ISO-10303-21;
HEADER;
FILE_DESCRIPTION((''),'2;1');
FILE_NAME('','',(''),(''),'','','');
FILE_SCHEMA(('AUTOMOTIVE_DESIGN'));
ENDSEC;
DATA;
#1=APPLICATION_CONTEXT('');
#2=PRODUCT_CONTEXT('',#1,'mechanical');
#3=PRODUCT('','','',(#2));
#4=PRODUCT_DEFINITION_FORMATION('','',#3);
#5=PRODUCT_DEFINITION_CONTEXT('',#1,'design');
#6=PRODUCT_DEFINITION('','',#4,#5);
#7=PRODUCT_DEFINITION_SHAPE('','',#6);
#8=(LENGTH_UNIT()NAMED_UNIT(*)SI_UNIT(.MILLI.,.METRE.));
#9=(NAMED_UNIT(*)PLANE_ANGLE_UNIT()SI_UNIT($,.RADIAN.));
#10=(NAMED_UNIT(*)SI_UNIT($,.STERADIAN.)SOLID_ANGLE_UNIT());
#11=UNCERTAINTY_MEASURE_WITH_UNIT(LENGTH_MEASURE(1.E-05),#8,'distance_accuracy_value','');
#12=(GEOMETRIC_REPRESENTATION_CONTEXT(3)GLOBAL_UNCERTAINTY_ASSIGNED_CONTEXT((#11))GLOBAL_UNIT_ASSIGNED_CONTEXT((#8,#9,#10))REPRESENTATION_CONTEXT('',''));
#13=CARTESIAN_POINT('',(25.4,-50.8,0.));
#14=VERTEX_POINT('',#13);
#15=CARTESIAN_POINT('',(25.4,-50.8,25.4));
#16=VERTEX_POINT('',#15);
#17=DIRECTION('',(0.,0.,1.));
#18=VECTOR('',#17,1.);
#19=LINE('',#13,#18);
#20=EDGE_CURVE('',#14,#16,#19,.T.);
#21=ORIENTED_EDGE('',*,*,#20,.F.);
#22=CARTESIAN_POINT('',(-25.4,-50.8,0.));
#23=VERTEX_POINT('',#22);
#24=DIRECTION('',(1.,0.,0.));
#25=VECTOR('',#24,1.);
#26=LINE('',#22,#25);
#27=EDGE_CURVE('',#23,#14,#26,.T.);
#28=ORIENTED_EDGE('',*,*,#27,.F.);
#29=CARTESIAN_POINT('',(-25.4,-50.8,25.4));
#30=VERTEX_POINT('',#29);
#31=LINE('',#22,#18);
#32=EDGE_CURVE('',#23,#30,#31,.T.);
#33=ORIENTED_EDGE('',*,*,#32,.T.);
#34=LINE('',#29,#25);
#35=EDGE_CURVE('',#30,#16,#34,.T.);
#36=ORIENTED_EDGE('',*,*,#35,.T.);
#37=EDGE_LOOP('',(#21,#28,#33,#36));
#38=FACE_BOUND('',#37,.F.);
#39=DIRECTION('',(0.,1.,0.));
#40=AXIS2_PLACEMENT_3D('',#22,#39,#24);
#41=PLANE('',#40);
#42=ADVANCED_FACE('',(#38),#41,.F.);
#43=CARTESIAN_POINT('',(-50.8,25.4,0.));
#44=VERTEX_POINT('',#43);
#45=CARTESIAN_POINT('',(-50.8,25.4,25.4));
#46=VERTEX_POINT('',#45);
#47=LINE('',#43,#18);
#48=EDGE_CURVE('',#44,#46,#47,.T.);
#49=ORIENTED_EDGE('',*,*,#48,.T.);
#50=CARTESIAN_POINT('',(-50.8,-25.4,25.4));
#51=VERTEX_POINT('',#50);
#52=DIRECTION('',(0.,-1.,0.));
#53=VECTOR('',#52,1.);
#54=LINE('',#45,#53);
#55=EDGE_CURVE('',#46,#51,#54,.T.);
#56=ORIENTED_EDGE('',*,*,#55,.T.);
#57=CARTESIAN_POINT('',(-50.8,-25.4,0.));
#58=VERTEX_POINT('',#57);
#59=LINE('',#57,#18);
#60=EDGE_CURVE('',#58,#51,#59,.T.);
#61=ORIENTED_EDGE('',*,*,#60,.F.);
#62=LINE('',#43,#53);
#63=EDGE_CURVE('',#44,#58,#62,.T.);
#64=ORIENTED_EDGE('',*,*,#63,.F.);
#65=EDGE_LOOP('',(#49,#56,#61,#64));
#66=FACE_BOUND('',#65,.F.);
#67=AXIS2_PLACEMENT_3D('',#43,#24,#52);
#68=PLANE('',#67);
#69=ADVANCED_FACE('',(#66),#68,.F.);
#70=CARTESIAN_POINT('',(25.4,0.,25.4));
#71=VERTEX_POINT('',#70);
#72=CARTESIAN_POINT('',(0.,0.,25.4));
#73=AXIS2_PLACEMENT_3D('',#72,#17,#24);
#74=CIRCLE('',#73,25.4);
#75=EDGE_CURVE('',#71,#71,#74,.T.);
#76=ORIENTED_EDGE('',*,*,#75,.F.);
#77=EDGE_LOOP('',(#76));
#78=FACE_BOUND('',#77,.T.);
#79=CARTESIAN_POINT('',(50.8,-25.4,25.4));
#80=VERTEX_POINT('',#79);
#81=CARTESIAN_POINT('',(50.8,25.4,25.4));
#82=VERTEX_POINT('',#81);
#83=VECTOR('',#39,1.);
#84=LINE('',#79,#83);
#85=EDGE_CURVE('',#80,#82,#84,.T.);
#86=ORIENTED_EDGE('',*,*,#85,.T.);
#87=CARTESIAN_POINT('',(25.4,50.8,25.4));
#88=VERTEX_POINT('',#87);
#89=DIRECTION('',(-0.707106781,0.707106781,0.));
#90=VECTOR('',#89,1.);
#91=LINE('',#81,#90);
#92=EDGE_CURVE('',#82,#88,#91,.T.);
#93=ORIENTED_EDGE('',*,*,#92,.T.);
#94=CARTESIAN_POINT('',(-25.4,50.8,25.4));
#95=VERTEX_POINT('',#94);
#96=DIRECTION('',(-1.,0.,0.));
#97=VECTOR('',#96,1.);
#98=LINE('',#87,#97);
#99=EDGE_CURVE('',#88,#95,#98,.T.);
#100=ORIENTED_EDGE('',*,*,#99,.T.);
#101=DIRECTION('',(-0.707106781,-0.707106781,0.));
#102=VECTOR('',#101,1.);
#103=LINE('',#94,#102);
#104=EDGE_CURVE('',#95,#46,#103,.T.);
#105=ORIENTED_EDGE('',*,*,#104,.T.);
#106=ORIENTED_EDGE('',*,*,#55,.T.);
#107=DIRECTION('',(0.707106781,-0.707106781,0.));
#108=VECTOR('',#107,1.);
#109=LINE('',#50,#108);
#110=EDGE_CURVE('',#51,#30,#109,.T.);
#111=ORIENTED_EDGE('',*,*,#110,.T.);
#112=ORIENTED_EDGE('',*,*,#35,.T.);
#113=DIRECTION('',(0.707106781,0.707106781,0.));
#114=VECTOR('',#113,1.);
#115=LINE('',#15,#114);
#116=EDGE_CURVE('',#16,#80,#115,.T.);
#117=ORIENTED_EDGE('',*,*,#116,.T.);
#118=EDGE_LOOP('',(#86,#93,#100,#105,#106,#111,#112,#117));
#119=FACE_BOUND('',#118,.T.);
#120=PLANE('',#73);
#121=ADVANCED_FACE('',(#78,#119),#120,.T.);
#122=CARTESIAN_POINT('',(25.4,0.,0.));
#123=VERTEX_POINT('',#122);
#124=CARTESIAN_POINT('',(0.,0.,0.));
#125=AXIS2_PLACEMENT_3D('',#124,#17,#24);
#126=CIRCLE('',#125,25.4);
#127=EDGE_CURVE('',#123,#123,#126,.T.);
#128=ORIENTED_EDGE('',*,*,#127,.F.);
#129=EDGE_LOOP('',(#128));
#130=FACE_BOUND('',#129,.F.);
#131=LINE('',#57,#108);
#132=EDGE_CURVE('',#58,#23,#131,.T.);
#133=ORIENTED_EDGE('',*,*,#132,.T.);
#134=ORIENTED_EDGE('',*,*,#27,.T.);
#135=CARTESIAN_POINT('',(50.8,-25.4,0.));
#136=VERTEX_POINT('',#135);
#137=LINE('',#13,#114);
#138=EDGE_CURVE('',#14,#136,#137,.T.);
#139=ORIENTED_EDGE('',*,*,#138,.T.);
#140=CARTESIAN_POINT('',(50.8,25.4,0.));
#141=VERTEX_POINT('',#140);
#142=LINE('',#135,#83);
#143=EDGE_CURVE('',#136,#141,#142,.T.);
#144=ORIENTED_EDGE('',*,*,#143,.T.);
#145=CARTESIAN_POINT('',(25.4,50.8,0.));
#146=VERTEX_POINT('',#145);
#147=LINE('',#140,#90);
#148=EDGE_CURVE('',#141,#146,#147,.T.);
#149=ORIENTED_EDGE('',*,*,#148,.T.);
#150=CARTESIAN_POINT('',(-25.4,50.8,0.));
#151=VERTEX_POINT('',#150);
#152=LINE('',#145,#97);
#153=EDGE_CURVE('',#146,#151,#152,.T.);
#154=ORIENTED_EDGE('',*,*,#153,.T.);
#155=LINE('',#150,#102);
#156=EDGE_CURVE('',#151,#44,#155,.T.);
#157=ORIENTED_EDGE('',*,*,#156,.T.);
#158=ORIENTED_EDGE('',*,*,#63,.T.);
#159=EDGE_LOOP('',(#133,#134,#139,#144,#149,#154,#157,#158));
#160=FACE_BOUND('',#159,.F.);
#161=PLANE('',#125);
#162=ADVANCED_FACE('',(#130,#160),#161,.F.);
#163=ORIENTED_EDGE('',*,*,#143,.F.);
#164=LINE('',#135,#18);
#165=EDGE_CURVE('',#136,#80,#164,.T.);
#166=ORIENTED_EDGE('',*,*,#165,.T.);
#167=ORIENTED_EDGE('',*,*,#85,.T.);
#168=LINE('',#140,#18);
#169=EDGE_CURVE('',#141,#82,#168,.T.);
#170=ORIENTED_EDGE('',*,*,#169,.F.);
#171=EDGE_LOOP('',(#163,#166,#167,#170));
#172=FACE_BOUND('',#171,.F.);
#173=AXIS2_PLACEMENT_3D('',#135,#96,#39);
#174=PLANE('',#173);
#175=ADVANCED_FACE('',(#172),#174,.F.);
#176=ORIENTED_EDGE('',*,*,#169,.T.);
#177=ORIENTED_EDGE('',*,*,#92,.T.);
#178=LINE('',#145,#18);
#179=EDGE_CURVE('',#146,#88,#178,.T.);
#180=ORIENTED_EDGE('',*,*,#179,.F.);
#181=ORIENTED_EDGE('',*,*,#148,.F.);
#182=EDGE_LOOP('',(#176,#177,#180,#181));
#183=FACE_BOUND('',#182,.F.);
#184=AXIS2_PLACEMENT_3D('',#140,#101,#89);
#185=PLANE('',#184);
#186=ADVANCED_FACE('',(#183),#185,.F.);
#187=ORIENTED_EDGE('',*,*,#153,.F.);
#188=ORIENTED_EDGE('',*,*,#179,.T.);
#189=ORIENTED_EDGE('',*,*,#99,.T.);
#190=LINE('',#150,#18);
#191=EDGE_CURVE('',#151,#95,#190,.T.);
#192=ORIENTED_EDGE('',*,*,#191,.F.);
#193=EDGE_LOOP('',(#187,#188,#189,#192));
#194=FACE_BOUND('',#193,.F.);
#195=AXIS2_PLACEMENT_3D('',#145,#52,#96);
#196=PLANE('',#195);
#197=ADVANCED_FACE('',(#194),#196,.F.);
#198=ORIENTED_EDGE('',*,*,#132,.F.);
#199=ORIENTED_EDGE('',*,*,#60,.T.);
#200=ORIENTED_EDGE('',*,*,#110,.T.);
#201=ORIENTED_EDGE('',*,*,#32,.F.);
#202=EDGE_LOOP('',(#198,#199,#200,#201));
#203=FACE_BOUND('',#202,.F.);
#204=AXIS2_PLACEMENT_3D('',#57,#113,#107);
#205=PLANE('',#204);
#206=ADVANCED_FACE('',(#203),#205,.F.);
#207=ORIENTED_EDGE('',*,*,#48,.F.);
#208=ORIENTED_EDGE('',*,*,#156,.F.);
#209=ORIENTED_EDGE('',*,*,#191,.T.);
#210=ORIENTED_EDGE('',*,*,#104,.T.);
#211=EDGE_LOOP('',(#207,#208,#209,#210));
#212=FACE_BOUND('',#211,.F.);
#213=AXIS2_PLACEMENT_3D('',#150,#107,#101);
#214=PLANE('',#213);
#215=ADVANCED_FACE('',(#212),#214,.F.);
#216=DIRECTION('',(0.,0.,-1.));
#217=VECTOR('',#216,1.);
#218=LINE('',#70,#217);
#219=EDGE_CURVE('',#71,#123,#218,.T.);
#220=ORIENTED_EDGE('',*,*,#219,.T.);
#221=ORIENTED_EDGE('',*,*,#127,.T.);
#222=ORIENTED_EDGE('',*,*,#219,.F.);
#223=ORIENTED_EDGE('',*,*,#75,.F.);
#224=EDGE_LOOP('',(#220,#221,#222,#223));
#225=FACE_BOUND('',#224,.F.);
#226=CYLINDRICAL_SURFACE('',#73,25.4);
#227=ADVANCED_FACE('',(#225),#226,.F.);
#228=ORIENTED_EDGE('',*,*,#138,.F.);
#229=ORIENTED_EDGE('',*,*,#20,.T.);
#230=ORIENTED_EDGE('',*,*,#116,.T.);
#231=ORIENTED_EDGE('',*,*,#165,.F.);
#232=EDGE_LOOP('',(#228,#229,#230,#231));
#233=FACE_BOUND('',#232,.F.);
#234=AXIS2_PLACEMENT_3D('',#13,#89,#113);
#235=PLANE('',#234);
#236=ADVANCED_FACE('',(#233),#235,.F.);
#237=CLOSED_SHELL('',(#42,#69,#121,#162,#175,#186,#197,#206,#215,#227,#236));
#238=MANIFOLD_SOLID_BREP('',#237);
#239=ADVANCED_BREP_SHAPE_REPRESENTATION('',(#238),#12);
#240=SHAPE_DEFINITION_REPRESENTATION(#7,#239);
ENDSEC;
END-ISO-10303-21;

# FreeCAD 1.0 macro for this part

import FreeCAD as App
import Part
import Sketcher

V = App.Vector
Q = App.Units.Quantity

doc = App.newDocument("Part")
body = doc.addObject("PartDesign::Body", "Body")

# Sketch on XY plane
sketch1 = body.newObject("Sketcher::SketchObject", "Sketch")
sketch1.AttachmentSupport = (doc.getObject("XY_Plane"), [""])
sketch1.MapMode = "FlatFace"
sketch1.addGeometry([
    Part.LineSegment(V(-51, 25, 0), V(-51, -25, 0)),  # 0
    Part.LineSegment(V(-51, -25, 0), V(-25, -51, 0)),  # 1
    Part.LineSegment(V(-25, -51, 0), V(25, -51, 0)),  # 2
    Part.LineSegment(V(25, -51, 0), V(51, -25, 0)),  # 3
    Part.LineSegment(V(51, -25, 0), V(51, 25, 0)),  # 4
    Part.LineSegment(V(51, 25, 0), V(25, 51, 0)),  # 5
    Part.LineSegment(V(25, 51, 0), V(-25, 51, 0)),  # 6
    Part.LineSegment(V(-25, 51, 0), V(-51, 25, 0)),  # 7
], False)
sketch1.addConstraint([
    Sketcher.Constraint("Coincident", 0, 2, 1, 1),
    Sketcher.Constraint("Coincident", 1, 2, 2, 1),
    Sketcher.Constraint("Coincident", 2, 2, 3, 1),
    Sketcher.Constraint("Coincident", 3, 2, 4, 1),
    Sketcher.Constraint("Coincident", 4, 2, 5, 1),
    Sketcher.Constraint("Coincident", 5, 2, 6, 1),
    Sketcher.Constraint("Coincident", 6, 2, 7, 1),
    Sketcher.Constraint("Coincident", 7, 2, 0, 1),
    Sketcher.Constraint("Vertical", 0),
    Sketcher.Constraint("Horizontal", 2),
    Sketcher.Constraint("Vertical", 4),
    Sketcher.Constraint("Horizontal", 6),
    Sketcher.Constraint("Symmetric", 0, 2, 4, 2, -1, 1),
    Sketcher.Constraint("Symmetric", 1, 2, 5, 2, -1, 1),
    Sketcher.Constraint("Perpendicular", 1, 3),
    Sketcher.Constraint("Perpendicular", 5, 7),
    Sketcher.Constraint("Horizontal", 0, 2, 3, 2),
    Sketcher.Constraint("Horizontal", 4, 2, 7, 2),
    Sketcher.Constraint("Vertical", 2, 2, 5, 2),
    Sketcher.Constraint("Equal", 6, 0),
    Sketcher.Constraint("DistanceX", 2, 1, 2, 2, Q("2 in")),
    Sketcher.Constraint("DistanceX", 0, 2, -1, 1, Q("2 in")),
])
pad1 = body.newObject("PartDesign::Pad", "Pad")
pad1.Profile = sketch1
pad1.Length = Q("1 in")

# Sketch on XY plane
sketch2 = body.newObject("Sketcher::SketchObject", "Sketch001")
sketch2.AttachmentSupport = (doc.getObject("XY_Plane"), [""])
sketch2.MapMode = "FlatFace"
sketch2.AttachmentOffset = App.Placement(V(0, 0, 1 * 25.4), App.Rotation())
sketch2.addGeometry(Part.Circle(V(0, 0, 0), V(0, 0, 1), 25), False)
sketch2.addConstraint([
    Sketcher.Constraint("Coincident", 0, 3, -1, 1),
    Sketcher.Constraint("Diameter", 0, Q("2 in")),
])
pocket1 = body.newObject("PartDesign::Pocket", "Pocket")
pocket1.Profile = sketch2
pocket1.Length = Q("1 in")

doc.recompute()
